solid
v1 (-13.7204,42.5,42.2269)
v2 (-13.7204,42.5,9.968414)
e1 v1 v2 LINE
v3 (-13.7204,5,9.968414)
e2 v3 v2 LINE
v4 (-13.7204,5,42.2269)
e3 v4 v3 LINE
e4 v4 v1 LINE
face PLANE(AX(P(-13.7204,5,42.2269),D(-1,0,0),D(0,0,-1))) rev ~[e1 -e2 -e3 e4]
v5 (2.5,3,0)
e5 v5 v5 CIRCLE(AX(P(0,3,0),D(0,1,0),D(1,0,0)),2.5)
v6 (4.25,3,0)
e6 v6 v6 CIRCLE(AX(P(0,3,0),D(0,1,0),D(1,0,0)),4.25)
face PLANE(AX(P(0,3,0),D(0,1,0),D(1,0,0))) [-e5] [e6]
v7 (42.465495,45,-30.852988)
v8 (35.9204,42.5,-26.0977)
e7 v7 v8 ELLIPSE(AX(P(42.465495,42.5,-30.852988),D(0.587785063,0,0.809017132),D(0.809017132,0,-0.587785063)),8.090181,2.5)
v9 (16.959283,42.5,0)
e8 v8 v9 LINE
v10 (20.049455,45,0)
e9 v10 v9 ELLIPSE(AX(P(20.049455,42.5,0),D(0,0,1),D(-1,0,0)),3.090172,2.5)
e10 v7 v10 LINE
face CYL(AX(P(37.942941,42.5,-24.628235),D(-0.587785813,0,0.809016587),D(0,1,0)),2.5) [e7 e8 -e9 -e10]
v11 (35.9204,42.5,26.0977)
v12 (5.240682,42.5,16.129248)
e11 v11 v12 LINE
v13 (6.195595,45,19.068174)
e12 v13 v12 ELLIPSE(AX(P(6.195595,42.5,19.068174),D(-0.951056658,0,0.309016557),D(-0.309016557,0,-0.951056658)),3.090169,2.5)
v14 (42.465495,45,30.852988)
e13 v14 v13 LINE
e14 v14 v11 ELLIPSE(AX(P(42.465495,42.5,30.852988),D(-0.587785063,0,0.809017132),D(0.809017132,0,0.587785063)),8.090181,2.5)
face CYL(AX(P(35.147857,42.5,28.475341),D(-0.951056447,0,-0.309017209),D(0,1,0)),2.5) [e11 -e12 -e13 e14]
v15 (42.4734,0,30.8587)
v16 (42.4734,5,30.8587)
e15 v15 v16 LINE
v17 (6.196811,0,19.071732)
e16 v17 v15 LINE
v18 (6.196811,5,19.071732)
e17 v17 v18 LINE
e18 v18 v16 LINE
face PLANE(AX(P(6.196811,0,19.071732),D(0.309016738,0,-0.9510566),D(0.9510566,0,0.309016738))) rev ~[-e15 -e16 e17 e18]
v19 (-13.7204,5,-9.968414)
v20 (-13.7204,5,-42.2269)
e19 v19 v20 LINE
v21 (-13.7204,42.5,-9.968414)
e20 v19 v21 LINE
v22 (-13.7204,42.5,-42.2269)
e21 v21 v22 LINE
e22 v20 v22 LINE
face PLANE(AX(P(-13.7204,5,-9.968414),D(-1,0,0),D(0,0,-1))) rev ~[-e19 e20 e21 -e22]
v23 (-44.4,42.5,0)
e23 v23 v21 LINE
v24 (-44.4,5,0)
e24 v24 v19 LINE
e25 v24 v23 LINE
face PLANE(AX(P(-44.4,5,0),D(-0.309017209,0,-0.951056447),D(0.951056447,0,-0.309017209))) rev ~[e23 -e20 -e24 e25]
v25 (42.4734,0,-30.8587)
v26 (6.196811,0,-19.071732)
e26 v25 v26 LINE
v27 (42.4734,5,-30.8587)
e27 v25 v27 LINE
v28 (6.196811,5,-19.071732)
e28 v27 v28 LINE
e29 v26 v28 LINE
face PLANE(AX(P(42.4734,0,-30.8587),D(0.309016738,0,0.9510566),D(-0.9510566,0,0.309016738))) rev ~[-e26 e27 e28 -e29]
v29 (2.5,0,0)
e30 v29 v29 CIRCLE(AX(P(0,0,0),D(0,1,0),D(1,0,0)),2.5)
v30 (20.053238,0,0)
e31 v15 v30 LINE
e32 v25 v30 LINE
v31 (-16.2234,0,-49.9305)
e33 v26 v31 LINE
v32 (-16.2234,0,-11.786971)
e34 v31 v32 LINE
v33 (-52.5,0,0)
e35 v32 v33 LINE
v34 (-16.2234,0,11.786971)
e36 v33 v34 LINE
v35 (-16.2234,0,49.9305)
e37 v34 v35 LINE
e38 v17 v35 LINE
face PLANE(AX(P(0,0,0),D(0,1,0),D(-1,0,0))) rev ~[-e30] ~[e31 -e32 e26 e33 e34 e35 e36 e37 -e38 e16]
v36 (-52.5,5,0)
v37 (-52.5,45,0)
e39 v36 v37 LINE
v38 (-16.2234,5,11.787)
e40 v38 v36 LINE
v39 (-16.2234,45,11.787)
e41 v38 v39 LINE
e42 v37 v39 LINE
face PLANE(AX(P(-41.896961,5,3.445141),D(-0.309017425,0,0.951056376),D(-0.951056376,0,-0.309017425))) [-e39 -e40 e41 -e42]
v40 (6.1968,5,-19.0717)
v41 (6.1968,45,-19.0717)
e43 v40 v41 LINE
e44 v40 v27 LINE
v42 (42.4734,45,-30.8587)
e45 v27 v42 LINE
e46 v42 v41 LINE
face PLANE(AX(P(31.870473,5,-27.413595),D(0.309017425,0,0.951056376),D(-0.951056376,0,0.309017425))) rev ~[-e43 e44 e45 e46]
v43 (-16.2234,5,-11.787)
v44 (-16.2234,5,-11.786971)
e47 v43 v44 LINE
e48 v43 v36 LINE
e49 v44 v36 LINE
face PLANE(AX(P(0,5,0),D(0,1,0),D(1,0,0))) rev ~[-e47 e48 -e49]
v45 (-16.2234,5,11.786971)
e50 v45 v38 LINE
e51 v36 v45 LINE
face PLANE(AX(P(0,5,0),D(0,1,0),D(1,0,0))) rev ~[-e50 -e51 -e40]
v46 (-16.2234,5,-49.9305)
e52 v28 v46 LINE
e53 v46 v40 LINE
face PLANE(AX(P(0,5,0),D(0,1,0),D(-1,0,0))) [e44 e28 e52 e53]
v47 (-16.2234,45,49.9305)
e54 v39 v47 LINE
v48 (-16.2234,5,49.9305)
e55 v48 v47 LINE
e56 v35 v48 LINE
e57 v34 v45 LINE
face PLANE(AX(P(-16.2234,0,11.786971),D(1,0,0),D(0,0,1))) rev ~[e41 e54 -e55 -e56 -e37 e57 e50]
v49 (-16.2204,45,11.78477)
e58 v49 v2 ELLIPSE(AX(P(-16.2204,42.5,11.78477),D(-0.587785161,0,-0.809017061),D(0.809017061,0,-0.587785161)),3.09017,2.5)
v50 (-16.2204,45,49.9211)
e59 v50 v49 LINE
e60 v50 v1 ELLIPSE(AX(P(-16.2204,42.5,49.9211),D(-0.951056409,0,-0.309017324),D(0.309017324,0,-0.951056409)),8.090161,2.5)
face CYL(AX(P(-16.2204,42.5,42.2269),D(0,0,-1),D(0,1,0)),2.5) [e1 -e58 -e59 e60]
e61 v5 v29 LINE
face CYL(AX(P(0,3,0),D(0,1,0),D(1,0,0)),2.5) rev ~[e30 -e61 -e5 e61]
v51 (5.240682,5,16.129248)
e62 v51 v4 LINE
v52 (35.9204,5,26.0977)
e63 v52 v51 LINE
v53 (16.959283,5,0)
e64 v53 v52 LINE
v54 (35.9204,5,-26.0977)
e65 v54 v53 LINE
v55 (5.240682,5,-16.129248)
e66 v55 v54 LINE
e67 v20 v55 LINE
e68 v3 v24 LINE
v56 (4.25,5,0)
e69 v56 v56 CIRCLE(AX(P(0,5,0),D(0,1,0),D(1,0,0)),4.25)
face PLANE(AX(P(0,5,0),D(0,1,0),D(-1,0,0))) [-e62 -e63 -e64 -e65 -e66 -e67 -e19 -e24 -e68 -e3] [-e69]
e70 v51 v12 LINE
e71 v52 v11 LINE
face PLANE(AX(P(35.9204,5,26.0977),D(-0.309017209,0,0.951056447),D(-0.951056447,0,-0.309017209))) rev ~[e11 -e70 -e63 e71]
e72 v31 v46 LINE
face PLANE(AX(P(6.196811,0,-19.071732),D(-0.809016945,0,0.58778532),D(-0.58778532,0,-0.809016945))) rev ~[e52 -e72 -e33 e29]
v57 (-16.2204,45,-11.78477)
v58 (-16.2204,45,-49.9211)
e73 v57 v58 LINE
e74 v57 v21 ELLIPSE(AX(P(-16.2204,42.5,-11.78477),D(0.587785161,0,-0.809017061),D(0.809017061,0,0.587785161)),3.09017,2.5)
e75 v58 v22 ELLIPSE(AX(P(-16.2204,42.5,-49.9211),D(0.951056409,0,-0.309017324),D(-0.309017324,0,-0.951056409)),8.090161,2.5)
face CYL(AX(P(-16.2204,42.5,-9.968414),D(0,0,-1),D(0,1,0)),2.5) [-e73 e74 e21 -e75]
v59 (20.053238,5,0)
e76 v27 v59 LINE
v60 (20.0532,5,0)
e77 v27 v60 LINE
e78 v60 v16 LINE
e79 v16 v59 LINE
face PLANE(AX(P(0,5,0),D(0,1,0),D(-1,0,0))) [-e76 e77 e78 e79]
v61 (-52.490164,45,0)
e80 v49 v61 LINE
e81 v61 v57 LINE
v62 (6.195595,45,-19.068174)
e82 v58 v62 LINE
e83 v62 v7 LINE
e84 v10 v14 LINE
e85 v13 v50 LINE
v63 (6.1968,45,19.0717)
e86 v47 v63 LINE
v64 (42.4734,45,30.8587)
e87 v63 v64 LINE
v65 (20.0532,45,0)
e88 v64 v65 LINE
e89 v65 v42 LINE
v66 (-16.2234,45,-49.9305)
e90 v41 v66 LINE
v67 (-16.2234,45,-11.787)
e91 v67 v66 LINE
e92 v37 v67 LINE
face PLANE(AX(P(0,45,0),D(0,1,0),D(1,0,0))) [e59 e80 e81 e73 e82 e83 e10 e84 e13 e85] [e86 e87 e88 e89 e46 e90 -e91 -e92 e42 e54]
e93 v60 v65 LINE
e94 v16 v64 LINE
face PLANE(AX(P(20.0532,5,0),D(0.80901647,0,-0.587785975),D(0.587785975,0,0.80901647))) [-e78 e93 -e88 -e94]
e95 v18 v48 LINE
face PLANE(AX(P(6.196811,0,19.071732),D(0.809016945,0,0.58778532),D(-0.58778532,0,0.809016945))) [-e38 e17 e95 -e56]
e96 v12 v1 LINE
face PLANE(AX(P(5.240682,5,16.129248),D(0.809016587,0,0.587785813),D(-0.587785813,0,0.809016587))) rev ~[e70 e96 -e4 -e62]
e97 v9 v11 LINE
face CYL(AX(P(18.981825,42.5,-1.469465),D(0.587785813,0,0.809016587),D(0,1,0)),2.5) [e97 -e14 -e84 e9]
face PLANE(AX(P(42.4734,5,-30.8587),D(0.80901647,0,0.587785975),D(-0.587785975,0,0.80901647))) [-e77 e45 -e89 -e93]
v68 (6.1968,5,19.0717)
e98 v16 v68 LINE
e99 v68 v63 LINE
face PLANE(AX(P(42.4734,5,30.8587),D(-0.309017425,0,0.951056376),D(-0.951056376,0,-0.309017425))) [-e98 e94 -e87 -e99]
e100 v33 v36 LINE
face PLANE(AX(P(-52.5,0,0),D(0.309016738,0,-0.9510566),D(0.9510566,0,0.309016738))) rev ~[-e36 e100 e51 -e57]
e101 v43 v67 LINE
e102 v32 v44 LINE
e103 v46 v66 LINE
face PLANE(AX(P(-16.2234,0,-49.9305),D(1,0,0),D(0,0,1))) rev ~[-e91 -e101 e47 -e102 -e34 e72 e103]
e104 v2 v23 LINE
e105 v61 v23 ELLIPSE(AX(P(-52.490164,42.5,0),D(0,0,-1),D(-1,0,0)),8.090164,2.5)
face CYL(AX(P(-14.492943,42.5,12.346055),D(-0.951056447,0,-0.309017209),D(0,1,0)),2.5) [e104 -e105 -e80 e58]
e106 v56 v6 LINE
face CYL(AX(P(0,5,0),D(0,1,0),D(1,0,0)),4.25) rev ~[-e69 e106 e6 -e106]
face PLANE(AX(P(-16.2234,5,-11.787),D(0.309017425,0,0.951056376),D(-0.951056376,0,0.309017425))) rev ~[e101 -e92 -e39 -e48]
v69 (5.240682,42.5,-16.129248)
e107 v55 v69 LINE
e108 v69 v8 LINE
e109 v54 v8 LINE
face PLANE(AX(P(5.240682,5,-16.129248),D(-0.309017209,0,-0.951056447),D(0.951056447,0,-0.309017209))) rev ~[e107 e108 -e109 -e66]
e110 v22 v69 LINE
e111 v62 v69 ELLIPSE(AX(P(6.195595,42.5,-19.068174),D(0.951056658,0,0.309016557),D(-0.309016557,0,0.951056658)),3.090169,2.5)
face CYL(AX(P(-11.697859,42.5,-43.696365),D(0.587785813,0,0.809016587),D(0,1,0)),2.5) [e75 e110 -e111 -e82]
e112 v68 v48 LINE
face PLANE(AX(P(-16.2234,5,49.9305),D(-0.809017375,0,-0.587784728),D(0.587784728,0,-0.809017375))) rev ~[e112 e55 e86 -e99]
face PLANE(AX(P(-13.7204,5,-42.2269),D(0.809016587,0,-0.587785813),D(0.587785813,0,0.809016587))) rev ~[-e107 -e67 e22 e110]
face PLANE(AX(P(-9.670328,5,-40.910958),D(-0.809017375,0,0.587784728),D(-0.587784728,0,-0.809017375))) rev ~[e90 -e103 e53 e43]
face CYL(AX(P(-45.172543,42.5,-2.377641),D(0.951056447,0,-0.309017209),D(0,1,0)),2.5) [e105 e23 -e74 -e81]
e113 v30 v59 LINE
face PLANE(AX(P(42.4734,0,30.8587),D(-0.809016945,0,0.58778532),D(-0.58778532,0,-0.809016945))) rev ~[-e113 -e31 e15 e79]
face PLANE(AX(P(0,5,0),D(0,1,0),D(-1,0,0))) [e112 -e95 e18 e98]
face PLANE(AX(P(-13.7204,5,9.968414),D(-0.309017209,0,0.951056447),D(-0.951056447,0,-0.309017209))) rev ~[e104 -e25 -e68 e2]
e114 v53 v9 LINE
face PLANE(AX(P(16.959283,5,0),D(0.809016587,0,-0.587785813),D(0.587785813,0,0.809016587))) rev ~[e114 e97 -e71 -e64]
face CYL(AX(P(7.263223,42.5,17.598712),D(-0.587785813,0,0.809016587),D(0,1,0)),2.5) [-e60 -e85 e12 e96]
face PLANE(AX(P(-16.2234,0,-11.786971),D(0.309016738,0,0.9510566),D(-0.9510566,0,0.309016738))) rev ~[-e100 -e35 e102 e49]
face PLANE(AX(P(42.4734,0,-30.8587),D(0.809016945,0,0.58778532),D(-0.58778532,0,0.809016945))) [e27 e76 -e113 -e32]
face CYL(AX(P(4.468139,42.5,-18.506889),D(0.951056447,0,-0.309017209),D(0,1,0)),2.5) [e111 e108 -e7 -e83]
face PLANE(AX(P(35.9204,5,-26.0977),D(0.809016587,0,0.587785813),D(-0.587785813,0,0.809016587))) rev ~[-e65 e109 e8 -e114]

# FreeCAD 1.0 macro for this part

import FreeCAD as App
import Part
import Sketcher
from FreeCAD import Vector
Q = App.Units.Quantity


def edges_at(feature, points):
    """Names of the edges that pass closest to the given points."""
    edges = feature.Shape.Edges
    near = lambda p: min(range(len(edges)), key=lambda i: edges[i].distToShape(Part.Vertex(*p))[0])
    return sorted({f"Edge{near(p) + 1}" for p in points})

doc = App.newDocument("Part")
params = doc.addObject("Spreadsheet::Sheet", "Params")
for row, (alias, value) in enumerate([
    ("pad1_length", "5 mm"),
    ("sketch2_diameter", "8.5 mm"),
    ("pocket1_length", "2 mm"),
    ("sketch3_diameter", "5 mm"),
    ("pad2_length", "40 mm"),
    ("fillet_radius", "2.5 mm"),
], start=1):
    params.set(f"A{row}", alias)
    params.set(f"B{row}", "=" + value)
    params.setAlias(f"B{row}", alias)

body = doc.addObject("PartDesign::Body", "Body")

sketch1 = body.newObject("Sketcher::SketchObject", "Sketch")
sketch1.AttachmentSupport = (doc.getObject("XZ_Plane"), [""])
sketch1.MapMode = "FlatFace"
sketch1.addGeometry([
    Part.LineSegment(Vector(-16.2234, -11.786971, 0), Vector(-52.5, 0, 0)),
    Part.LineSegment(Vector(-52.5, 0, 0), Vector(-16.2234, 11.786971, 0)),
    Part.LineSegment(Vector(-16.2234, 11.786971, 0), Vector(-16.2234, 49.9305, 0)),
    Part.LineSegment(Vector(-16.2234, 49.9305, 0), Vector(6.196811, 19.071732, 0)),
    Part.LineSegment(Vector(6.196811, 19.071732, 0), Vector(42.4734, 30.8587, 0)),
    Part.LineSegment(Vector(42.4734, 30.8587, 0), Vector(20.053238, 0, 0)),
    Part.LineSegment(Vector(20.053238, 0, 0), Vector(42.4734, -30.8587, 0)),
    Part.LineSegment(Vector(42.4734, -30.8587, 0), Vector(6.196811, -19.071732, 0)),
    Part.LineSegment(Vector(6.196811, -19.071732, 0), Vector(-16.2234, -49.9305, 0)),
    Part.LineSegment(Vector(-16.2234, -49.9305, 0), Vector(-16.2234, -11.786971, 0)),
], False)
sketch1.addConstraint([
    Sketcher.Constraint("Coincident", 0, 2, 1, 1),
    Sketcher.Constraint("Coincident", 1, 2, 2, 1),
    Sketcher.Constraint("Coincident", 2, 2, 3, 1),
    Sketcher.Constraint("Coincident", 3, 2, 4, 1),
    Sketcher.Constraint("Coincident", 4, 2, 5, 1),
    Sketcher.Constraint("Coincident", 5, 2, 6, 1),
    Sketcher.Constraint("Coincident", 6, 2, 7, 1),
    Sketcher.Constraint("Coincident", 7, 2, 8, 1),
    Sketcher.Constraint("Coincident", 8, 2, 9, 1),
    Sketcher.Constraint("Coincident", 9, 2, 0, 1),
    Sketcher.Constraint("Vertical", 2),
    Sketcher.Constraint("Vertical", 9),
    Sketcher.Constraint("Symmetric", 4, 2, 6, 2, -1),
    Sketcher.Constraint("Symmetric", 3, 2, 7, 2, -1),
    Sketcher.Constraint("Symmetric", 2, 2, 8, 2, -1),
    Sketcher.Constraint("PointOnObject", 0, 2, -1),
    Sketcher.Constraint("PointOnObject", 5, 2, -1),
    Sketcher.Constraint("Parallel", 1, 4),
    Sketcher.Constraint("Parallel", 3, 6),
    Sketcher.Constraint("Parallel", 0, 7),
    Sketcher.Constraint("Equal", 1, 3),
    Sketcher.Constraint("Equal", 3, 4),
    Sketcher.Constraint("Equal", 4, 5),
    Sketcher.Constraint("Angle", 0, Q("162 deg")),
    Sketcher.Constraint("Angle", 3, Q("-54 deg")),
    Sketcher.Constraint("DistanceX", 0, 2, -1, 1, 52.5),
    Sketcher.Constraint("DistanceY", 2, 1, 2, 2, 38.1435),
])
pad1 = body.newObject("PartDesign::Pad", "Pad")
pad1.Profile = sketch1
pad1.setExpression("Length", "Params.pad1_length")
pad1.Reversed = True

sketch2 = body.newObject("Sketcher::SketchObject", "Sketch001")
sketch2.AttachmentSupport = (doc.getObject("XZ_Plane"), [""])
sketch2.MapMode = "FlatFace"
sketch2.AttachmentOffset = App.Placement(Vector(0, 0, -5), App.Rotation())
sketch2.addGeometry(Part.Circle(Vector(0, 0, 0), Vector(0, 0, 1), 4.25), False)
sketch2.addConstraint([
    Sketcher.Constraint("Coincident", 0, 3, -1, 1),
    Sketcher.Constraint("Diameter", 0, 8.5),
])
sketch2.setExpression("Constraints[1]", "Params.sketch2_diameter")
pocket1 = body.newObject("PartDesign::Pocket", "Pocket")
pocket1.Profile = sketch2
pocket1.setExpression("Length", "Params.pocket1_length")
pocket1.Reversed = True

sketch3 = body.newObject("Sketcher::SketchObject", "Sketch002")
sketch3.AttachmentSupport = (doc.getObject("XZ_Plane"), [""])
sketch3.MapMode = "FlatFace"
sketch3.AttachmentOffset = App.Placement(Vector(0, 0, -3), App.Rotation())
sketch3.addGeometry(Part.Circle(Vector(0, 0, 0), Vector(0, 0, 1), 2.5), False)
sketch3.addConstraint([
    Sketcher.Constraint("Coincident", 0, 3, -1, 1),
    Sketcher.Constraint("Diameter", 0, 5.0),
])
sketch3.setExpression("Constraints[1]", "Params.sketch3_diameter")
pocket2 = body.newObject("PartDesign::Pocket", "Pocket001")
pocket2.Profile = sketch3
pocket2.Type = "ThroughAll"
pocket2.Reversed = True

sketch4 = body.newObject("Sketcher::SketchObject", "Sketch003")
sketch4.AttachmentSupport = (doc.getObject("XZ_Plane"), [""])
sketch4.MapMode = "FlatFace"
sketch4.AttachmentOffset = App.Placement(Vector(0, 0, -5), App.Rotation())
sketch4.addGeometry([
    Part.LineSegment(Vector(-16.2234, -11.787, 0), Vector(-52.5, 0, 0)),
    Part.LineSegment(Vector(-52.5, 0, 0), Vector(-16.2234, 11.787, 0)),
    Part.LineSegment(Vector(-16.2234, 11.787, 0), Vector(-16.2234, 49.9305, 0)),
    Part.LineSegment(Vector(-16.2234, 49.9305, 0), Vector(6.1968, 19.0717, 0)),
    Part.LineSegment(Vector(6.1968, 19.0717, 0), Vector(42.4734, 30.8587, 0)),
    Part.LineSegment(Vector(42.4734, 30.8587, 0), Vector(20.0532, 0, 0)),
    Part.LineSegment(Vector(20.0532, 0, 0), Vector(42.4734, -30.8587, 0)),
    Part.LineSegment(Vector(42.4734, -30.8587, 0), Vector(6.1968, -19.0717, 0)),
    Part.LineSegment(Vector(6.1968, -19.0717, 0), Vector(-16.2234, -49.9305, 0)),
    Part.LineSegment(Vector(-16.2234, -49.9305, 0), Vector(-16.2234, -11.787, 0)),
    Part.LineSegment(Vector(-13.7204, -9.968414, 0), Vector(-13.7204, -42.2269, 0)),
    Part.LineSegment(Vector(-13.7204, -42.2269, 0), Vector(5.240682, -16.129248, 0)),
    Part.LineSegment(Vector(5.240682, -16.129248, 0), Vector(35.9204, -26.0977, 0)),
    Part.LineSegment(Vector(35.9204, -26.0977, 0), Vector(16.959283, 0, 0)),
    Part.LineSegment(Vector(16.959283, 0, 0), Vector(35.9204, 26.0977, 0)),
    Part.LineSegment(Vector(35.9204, 26.0977, 0), Vector(5.240682, 16.129248, 0)),
    Part.LineSegment(Vector(5.240682, 16.129248, 0), Vector(-13.7204, 42.2269, 0)),
    Part.LineSegment(Vector(-13.7204, 42.2269, 0), Vector(-13.7204, 9.968414, 0)),
    Part.LineSegment(Vector(-13.7204, 9.968414, 0), Vector(-44.4, 0, 0)),
    Part.LineSegment(Vector(-44.4, 0, 0), Vector(-13.7204, -9.968414, 0)),
], False)
sketch4.addConstraint([
    Sketcher.Constraint("Coincident", 0, 2, 1, 1),
    Sketcher.Constraint("Coincident", 1, 2, 2, 1),
    Sketcher.Constraint("Coincident", 2, 2, 3, 1),
    Sketcher.Constraint("Coincident", 3, 2, 4, 1),
    Sketcher.Constraint("Coincident", 4, 2, 5, 1),
    Sketcher.Constraint("Coincident", 5, 2, 6, 1),
    Sketcher.Constraint("Coincident", 6, 2, 7, 1),
    Sketcher.Constraint("Coincident", 7, 2, 8, 1),
    Sketcher.Constraint("Coincident", 8, 2, 9, 1),
    Sketcher.Constraint("Coincident", 9, 2, 0, 1),
    Sketcher.Constraint("Coincident", 10, 2, 11, 1),
    Sketcher.Constraint("Coincident", 11, 2, 12, 1),
    Sketcher.Constraint("Coincident", 12, 2, 13, 1),
    Sketcher.Constraint("Coincident", 13, 2, 14, 1),
    Sketcher.Constraint("Coincident", 14, 2, 15, 1),
    Sketcher.Constraint("Coincident", 15, 2, 16, 1),
    Sketcher.Constraint("Coincident", 16, 2, 17, 1),
    Sketcher.Constraint("Coincident", 17, 2, 18, 1),
    Sketcher.Constraint("Coincident", 18, 2, 19, 1),
    Sketcher.Constraint("Coincident", 19, 2, 10, 1),
    Sketcher.Constraint("Vertical", 2),
    Sketcher.Constraint("Vertical", 9),
    Sketcher.Constraint("Vertical", 10),
    Sketcher.Constraint("Vertical", 17),
    Sketcher.Constraint("Symmetric", 4, 2, 6, 2, -1),
    Sketcher.Constraint("Symmetric", 3, 2, 7, 2, -1),
    Sketcher.Constraint("Symmetric", 2, 2, 8, 2, -1),
    Sketcher.Constraint("Symmetric", 12, 2, 14, 2, -1),
    Sketcher.Constraint("Symmetric", 11, 2, 15, 2, -1),
    Sketcher.Constraint("Symmetric", 10, 2, 16, 2, -1),
    Sketcher.Constraint("PointOnObject", 0, 2, -1),
    Sketcher.Constraint("PointOnObject", 5, 2, -1),
    Sketcher.Constraint("PointOnObject", 13, 2, -1),
    Sketcher.Constraint("PointOnObject", 18, 2, -1),
    Sketcher.Constraint("Parallel", 1, 4),
    Sketcher.Constraint("Parallel", 3, 6),
    Sketcher.Constraint("Parallel", 0, 7),
    Sketcher.Constraint("Parallel", 8, 11),
    Sketcher.Constraint("Parallel", 7, 12),
    Sketcher.Constraint("Parallel", 6, 13),
    Sketcher.Constraint("Parallel", 15, 18),
    Sketcher.Constraint("Parallel", 12, 19),
    Sketcher.Constraint("Equal", 1, 3),
    Sketcher.Constraint("Equal", 3, 4),
    Sketcher.Constraint("Equal", 4, 5),
    Sketcher.Constraint("Equal", 11, 12),
    Sketcher.Constraint("Equal", 12, 13),
    Sketcher.Constraint("Equal", 16, 18),
    Sketcher.Constraint("DistanceX", 0, 2, 18, 2, 8.1),
    Sketcher.Constraint("Angle", 0, Q("162 deg")),
    Sketcher.Constraint("Angle", 3, Q("-54 deg")),
    Sketcher.Constraint("DistanceX", 0, 2, -1, 1, 52.5),
    Sketcher.Constraint("DistanceY", 10, 2, 9, 2, 30.44),
    Sketcher.Constraint("DistanceY", 2, 1, 2, 2, 38.1435),
])
pad2 = body.newObject("PartDesign::Pad", "Pad001")
pad2.Profile = sketch4
pad2.setExpression("Length", "Params.pad2_length")
pad2.Reversed = True
doc.recompute()

fillet = body.newObject("PartDesign::Fillet", "Fillet")
fillet.Base = (pad2, edges_at(pad2, [
    (-13.72, 45, 26.098),
    (-29.06, 45, 4.984),
    (-29.06, 45, -4.984),
    (-13.72, 45, -26.098),
    (-4.24, 45, -29.178),
    (20.581, 45, -21.113),
    (26.44, 45, -13.049),
    (26.44, 45, 13.049),
    (20.581, 45, 21.113),
    (-4.24, 45, 29.178),
]))
fillet.setExpression("Radius", "Params.fillet_radius")

doc.recompute()
